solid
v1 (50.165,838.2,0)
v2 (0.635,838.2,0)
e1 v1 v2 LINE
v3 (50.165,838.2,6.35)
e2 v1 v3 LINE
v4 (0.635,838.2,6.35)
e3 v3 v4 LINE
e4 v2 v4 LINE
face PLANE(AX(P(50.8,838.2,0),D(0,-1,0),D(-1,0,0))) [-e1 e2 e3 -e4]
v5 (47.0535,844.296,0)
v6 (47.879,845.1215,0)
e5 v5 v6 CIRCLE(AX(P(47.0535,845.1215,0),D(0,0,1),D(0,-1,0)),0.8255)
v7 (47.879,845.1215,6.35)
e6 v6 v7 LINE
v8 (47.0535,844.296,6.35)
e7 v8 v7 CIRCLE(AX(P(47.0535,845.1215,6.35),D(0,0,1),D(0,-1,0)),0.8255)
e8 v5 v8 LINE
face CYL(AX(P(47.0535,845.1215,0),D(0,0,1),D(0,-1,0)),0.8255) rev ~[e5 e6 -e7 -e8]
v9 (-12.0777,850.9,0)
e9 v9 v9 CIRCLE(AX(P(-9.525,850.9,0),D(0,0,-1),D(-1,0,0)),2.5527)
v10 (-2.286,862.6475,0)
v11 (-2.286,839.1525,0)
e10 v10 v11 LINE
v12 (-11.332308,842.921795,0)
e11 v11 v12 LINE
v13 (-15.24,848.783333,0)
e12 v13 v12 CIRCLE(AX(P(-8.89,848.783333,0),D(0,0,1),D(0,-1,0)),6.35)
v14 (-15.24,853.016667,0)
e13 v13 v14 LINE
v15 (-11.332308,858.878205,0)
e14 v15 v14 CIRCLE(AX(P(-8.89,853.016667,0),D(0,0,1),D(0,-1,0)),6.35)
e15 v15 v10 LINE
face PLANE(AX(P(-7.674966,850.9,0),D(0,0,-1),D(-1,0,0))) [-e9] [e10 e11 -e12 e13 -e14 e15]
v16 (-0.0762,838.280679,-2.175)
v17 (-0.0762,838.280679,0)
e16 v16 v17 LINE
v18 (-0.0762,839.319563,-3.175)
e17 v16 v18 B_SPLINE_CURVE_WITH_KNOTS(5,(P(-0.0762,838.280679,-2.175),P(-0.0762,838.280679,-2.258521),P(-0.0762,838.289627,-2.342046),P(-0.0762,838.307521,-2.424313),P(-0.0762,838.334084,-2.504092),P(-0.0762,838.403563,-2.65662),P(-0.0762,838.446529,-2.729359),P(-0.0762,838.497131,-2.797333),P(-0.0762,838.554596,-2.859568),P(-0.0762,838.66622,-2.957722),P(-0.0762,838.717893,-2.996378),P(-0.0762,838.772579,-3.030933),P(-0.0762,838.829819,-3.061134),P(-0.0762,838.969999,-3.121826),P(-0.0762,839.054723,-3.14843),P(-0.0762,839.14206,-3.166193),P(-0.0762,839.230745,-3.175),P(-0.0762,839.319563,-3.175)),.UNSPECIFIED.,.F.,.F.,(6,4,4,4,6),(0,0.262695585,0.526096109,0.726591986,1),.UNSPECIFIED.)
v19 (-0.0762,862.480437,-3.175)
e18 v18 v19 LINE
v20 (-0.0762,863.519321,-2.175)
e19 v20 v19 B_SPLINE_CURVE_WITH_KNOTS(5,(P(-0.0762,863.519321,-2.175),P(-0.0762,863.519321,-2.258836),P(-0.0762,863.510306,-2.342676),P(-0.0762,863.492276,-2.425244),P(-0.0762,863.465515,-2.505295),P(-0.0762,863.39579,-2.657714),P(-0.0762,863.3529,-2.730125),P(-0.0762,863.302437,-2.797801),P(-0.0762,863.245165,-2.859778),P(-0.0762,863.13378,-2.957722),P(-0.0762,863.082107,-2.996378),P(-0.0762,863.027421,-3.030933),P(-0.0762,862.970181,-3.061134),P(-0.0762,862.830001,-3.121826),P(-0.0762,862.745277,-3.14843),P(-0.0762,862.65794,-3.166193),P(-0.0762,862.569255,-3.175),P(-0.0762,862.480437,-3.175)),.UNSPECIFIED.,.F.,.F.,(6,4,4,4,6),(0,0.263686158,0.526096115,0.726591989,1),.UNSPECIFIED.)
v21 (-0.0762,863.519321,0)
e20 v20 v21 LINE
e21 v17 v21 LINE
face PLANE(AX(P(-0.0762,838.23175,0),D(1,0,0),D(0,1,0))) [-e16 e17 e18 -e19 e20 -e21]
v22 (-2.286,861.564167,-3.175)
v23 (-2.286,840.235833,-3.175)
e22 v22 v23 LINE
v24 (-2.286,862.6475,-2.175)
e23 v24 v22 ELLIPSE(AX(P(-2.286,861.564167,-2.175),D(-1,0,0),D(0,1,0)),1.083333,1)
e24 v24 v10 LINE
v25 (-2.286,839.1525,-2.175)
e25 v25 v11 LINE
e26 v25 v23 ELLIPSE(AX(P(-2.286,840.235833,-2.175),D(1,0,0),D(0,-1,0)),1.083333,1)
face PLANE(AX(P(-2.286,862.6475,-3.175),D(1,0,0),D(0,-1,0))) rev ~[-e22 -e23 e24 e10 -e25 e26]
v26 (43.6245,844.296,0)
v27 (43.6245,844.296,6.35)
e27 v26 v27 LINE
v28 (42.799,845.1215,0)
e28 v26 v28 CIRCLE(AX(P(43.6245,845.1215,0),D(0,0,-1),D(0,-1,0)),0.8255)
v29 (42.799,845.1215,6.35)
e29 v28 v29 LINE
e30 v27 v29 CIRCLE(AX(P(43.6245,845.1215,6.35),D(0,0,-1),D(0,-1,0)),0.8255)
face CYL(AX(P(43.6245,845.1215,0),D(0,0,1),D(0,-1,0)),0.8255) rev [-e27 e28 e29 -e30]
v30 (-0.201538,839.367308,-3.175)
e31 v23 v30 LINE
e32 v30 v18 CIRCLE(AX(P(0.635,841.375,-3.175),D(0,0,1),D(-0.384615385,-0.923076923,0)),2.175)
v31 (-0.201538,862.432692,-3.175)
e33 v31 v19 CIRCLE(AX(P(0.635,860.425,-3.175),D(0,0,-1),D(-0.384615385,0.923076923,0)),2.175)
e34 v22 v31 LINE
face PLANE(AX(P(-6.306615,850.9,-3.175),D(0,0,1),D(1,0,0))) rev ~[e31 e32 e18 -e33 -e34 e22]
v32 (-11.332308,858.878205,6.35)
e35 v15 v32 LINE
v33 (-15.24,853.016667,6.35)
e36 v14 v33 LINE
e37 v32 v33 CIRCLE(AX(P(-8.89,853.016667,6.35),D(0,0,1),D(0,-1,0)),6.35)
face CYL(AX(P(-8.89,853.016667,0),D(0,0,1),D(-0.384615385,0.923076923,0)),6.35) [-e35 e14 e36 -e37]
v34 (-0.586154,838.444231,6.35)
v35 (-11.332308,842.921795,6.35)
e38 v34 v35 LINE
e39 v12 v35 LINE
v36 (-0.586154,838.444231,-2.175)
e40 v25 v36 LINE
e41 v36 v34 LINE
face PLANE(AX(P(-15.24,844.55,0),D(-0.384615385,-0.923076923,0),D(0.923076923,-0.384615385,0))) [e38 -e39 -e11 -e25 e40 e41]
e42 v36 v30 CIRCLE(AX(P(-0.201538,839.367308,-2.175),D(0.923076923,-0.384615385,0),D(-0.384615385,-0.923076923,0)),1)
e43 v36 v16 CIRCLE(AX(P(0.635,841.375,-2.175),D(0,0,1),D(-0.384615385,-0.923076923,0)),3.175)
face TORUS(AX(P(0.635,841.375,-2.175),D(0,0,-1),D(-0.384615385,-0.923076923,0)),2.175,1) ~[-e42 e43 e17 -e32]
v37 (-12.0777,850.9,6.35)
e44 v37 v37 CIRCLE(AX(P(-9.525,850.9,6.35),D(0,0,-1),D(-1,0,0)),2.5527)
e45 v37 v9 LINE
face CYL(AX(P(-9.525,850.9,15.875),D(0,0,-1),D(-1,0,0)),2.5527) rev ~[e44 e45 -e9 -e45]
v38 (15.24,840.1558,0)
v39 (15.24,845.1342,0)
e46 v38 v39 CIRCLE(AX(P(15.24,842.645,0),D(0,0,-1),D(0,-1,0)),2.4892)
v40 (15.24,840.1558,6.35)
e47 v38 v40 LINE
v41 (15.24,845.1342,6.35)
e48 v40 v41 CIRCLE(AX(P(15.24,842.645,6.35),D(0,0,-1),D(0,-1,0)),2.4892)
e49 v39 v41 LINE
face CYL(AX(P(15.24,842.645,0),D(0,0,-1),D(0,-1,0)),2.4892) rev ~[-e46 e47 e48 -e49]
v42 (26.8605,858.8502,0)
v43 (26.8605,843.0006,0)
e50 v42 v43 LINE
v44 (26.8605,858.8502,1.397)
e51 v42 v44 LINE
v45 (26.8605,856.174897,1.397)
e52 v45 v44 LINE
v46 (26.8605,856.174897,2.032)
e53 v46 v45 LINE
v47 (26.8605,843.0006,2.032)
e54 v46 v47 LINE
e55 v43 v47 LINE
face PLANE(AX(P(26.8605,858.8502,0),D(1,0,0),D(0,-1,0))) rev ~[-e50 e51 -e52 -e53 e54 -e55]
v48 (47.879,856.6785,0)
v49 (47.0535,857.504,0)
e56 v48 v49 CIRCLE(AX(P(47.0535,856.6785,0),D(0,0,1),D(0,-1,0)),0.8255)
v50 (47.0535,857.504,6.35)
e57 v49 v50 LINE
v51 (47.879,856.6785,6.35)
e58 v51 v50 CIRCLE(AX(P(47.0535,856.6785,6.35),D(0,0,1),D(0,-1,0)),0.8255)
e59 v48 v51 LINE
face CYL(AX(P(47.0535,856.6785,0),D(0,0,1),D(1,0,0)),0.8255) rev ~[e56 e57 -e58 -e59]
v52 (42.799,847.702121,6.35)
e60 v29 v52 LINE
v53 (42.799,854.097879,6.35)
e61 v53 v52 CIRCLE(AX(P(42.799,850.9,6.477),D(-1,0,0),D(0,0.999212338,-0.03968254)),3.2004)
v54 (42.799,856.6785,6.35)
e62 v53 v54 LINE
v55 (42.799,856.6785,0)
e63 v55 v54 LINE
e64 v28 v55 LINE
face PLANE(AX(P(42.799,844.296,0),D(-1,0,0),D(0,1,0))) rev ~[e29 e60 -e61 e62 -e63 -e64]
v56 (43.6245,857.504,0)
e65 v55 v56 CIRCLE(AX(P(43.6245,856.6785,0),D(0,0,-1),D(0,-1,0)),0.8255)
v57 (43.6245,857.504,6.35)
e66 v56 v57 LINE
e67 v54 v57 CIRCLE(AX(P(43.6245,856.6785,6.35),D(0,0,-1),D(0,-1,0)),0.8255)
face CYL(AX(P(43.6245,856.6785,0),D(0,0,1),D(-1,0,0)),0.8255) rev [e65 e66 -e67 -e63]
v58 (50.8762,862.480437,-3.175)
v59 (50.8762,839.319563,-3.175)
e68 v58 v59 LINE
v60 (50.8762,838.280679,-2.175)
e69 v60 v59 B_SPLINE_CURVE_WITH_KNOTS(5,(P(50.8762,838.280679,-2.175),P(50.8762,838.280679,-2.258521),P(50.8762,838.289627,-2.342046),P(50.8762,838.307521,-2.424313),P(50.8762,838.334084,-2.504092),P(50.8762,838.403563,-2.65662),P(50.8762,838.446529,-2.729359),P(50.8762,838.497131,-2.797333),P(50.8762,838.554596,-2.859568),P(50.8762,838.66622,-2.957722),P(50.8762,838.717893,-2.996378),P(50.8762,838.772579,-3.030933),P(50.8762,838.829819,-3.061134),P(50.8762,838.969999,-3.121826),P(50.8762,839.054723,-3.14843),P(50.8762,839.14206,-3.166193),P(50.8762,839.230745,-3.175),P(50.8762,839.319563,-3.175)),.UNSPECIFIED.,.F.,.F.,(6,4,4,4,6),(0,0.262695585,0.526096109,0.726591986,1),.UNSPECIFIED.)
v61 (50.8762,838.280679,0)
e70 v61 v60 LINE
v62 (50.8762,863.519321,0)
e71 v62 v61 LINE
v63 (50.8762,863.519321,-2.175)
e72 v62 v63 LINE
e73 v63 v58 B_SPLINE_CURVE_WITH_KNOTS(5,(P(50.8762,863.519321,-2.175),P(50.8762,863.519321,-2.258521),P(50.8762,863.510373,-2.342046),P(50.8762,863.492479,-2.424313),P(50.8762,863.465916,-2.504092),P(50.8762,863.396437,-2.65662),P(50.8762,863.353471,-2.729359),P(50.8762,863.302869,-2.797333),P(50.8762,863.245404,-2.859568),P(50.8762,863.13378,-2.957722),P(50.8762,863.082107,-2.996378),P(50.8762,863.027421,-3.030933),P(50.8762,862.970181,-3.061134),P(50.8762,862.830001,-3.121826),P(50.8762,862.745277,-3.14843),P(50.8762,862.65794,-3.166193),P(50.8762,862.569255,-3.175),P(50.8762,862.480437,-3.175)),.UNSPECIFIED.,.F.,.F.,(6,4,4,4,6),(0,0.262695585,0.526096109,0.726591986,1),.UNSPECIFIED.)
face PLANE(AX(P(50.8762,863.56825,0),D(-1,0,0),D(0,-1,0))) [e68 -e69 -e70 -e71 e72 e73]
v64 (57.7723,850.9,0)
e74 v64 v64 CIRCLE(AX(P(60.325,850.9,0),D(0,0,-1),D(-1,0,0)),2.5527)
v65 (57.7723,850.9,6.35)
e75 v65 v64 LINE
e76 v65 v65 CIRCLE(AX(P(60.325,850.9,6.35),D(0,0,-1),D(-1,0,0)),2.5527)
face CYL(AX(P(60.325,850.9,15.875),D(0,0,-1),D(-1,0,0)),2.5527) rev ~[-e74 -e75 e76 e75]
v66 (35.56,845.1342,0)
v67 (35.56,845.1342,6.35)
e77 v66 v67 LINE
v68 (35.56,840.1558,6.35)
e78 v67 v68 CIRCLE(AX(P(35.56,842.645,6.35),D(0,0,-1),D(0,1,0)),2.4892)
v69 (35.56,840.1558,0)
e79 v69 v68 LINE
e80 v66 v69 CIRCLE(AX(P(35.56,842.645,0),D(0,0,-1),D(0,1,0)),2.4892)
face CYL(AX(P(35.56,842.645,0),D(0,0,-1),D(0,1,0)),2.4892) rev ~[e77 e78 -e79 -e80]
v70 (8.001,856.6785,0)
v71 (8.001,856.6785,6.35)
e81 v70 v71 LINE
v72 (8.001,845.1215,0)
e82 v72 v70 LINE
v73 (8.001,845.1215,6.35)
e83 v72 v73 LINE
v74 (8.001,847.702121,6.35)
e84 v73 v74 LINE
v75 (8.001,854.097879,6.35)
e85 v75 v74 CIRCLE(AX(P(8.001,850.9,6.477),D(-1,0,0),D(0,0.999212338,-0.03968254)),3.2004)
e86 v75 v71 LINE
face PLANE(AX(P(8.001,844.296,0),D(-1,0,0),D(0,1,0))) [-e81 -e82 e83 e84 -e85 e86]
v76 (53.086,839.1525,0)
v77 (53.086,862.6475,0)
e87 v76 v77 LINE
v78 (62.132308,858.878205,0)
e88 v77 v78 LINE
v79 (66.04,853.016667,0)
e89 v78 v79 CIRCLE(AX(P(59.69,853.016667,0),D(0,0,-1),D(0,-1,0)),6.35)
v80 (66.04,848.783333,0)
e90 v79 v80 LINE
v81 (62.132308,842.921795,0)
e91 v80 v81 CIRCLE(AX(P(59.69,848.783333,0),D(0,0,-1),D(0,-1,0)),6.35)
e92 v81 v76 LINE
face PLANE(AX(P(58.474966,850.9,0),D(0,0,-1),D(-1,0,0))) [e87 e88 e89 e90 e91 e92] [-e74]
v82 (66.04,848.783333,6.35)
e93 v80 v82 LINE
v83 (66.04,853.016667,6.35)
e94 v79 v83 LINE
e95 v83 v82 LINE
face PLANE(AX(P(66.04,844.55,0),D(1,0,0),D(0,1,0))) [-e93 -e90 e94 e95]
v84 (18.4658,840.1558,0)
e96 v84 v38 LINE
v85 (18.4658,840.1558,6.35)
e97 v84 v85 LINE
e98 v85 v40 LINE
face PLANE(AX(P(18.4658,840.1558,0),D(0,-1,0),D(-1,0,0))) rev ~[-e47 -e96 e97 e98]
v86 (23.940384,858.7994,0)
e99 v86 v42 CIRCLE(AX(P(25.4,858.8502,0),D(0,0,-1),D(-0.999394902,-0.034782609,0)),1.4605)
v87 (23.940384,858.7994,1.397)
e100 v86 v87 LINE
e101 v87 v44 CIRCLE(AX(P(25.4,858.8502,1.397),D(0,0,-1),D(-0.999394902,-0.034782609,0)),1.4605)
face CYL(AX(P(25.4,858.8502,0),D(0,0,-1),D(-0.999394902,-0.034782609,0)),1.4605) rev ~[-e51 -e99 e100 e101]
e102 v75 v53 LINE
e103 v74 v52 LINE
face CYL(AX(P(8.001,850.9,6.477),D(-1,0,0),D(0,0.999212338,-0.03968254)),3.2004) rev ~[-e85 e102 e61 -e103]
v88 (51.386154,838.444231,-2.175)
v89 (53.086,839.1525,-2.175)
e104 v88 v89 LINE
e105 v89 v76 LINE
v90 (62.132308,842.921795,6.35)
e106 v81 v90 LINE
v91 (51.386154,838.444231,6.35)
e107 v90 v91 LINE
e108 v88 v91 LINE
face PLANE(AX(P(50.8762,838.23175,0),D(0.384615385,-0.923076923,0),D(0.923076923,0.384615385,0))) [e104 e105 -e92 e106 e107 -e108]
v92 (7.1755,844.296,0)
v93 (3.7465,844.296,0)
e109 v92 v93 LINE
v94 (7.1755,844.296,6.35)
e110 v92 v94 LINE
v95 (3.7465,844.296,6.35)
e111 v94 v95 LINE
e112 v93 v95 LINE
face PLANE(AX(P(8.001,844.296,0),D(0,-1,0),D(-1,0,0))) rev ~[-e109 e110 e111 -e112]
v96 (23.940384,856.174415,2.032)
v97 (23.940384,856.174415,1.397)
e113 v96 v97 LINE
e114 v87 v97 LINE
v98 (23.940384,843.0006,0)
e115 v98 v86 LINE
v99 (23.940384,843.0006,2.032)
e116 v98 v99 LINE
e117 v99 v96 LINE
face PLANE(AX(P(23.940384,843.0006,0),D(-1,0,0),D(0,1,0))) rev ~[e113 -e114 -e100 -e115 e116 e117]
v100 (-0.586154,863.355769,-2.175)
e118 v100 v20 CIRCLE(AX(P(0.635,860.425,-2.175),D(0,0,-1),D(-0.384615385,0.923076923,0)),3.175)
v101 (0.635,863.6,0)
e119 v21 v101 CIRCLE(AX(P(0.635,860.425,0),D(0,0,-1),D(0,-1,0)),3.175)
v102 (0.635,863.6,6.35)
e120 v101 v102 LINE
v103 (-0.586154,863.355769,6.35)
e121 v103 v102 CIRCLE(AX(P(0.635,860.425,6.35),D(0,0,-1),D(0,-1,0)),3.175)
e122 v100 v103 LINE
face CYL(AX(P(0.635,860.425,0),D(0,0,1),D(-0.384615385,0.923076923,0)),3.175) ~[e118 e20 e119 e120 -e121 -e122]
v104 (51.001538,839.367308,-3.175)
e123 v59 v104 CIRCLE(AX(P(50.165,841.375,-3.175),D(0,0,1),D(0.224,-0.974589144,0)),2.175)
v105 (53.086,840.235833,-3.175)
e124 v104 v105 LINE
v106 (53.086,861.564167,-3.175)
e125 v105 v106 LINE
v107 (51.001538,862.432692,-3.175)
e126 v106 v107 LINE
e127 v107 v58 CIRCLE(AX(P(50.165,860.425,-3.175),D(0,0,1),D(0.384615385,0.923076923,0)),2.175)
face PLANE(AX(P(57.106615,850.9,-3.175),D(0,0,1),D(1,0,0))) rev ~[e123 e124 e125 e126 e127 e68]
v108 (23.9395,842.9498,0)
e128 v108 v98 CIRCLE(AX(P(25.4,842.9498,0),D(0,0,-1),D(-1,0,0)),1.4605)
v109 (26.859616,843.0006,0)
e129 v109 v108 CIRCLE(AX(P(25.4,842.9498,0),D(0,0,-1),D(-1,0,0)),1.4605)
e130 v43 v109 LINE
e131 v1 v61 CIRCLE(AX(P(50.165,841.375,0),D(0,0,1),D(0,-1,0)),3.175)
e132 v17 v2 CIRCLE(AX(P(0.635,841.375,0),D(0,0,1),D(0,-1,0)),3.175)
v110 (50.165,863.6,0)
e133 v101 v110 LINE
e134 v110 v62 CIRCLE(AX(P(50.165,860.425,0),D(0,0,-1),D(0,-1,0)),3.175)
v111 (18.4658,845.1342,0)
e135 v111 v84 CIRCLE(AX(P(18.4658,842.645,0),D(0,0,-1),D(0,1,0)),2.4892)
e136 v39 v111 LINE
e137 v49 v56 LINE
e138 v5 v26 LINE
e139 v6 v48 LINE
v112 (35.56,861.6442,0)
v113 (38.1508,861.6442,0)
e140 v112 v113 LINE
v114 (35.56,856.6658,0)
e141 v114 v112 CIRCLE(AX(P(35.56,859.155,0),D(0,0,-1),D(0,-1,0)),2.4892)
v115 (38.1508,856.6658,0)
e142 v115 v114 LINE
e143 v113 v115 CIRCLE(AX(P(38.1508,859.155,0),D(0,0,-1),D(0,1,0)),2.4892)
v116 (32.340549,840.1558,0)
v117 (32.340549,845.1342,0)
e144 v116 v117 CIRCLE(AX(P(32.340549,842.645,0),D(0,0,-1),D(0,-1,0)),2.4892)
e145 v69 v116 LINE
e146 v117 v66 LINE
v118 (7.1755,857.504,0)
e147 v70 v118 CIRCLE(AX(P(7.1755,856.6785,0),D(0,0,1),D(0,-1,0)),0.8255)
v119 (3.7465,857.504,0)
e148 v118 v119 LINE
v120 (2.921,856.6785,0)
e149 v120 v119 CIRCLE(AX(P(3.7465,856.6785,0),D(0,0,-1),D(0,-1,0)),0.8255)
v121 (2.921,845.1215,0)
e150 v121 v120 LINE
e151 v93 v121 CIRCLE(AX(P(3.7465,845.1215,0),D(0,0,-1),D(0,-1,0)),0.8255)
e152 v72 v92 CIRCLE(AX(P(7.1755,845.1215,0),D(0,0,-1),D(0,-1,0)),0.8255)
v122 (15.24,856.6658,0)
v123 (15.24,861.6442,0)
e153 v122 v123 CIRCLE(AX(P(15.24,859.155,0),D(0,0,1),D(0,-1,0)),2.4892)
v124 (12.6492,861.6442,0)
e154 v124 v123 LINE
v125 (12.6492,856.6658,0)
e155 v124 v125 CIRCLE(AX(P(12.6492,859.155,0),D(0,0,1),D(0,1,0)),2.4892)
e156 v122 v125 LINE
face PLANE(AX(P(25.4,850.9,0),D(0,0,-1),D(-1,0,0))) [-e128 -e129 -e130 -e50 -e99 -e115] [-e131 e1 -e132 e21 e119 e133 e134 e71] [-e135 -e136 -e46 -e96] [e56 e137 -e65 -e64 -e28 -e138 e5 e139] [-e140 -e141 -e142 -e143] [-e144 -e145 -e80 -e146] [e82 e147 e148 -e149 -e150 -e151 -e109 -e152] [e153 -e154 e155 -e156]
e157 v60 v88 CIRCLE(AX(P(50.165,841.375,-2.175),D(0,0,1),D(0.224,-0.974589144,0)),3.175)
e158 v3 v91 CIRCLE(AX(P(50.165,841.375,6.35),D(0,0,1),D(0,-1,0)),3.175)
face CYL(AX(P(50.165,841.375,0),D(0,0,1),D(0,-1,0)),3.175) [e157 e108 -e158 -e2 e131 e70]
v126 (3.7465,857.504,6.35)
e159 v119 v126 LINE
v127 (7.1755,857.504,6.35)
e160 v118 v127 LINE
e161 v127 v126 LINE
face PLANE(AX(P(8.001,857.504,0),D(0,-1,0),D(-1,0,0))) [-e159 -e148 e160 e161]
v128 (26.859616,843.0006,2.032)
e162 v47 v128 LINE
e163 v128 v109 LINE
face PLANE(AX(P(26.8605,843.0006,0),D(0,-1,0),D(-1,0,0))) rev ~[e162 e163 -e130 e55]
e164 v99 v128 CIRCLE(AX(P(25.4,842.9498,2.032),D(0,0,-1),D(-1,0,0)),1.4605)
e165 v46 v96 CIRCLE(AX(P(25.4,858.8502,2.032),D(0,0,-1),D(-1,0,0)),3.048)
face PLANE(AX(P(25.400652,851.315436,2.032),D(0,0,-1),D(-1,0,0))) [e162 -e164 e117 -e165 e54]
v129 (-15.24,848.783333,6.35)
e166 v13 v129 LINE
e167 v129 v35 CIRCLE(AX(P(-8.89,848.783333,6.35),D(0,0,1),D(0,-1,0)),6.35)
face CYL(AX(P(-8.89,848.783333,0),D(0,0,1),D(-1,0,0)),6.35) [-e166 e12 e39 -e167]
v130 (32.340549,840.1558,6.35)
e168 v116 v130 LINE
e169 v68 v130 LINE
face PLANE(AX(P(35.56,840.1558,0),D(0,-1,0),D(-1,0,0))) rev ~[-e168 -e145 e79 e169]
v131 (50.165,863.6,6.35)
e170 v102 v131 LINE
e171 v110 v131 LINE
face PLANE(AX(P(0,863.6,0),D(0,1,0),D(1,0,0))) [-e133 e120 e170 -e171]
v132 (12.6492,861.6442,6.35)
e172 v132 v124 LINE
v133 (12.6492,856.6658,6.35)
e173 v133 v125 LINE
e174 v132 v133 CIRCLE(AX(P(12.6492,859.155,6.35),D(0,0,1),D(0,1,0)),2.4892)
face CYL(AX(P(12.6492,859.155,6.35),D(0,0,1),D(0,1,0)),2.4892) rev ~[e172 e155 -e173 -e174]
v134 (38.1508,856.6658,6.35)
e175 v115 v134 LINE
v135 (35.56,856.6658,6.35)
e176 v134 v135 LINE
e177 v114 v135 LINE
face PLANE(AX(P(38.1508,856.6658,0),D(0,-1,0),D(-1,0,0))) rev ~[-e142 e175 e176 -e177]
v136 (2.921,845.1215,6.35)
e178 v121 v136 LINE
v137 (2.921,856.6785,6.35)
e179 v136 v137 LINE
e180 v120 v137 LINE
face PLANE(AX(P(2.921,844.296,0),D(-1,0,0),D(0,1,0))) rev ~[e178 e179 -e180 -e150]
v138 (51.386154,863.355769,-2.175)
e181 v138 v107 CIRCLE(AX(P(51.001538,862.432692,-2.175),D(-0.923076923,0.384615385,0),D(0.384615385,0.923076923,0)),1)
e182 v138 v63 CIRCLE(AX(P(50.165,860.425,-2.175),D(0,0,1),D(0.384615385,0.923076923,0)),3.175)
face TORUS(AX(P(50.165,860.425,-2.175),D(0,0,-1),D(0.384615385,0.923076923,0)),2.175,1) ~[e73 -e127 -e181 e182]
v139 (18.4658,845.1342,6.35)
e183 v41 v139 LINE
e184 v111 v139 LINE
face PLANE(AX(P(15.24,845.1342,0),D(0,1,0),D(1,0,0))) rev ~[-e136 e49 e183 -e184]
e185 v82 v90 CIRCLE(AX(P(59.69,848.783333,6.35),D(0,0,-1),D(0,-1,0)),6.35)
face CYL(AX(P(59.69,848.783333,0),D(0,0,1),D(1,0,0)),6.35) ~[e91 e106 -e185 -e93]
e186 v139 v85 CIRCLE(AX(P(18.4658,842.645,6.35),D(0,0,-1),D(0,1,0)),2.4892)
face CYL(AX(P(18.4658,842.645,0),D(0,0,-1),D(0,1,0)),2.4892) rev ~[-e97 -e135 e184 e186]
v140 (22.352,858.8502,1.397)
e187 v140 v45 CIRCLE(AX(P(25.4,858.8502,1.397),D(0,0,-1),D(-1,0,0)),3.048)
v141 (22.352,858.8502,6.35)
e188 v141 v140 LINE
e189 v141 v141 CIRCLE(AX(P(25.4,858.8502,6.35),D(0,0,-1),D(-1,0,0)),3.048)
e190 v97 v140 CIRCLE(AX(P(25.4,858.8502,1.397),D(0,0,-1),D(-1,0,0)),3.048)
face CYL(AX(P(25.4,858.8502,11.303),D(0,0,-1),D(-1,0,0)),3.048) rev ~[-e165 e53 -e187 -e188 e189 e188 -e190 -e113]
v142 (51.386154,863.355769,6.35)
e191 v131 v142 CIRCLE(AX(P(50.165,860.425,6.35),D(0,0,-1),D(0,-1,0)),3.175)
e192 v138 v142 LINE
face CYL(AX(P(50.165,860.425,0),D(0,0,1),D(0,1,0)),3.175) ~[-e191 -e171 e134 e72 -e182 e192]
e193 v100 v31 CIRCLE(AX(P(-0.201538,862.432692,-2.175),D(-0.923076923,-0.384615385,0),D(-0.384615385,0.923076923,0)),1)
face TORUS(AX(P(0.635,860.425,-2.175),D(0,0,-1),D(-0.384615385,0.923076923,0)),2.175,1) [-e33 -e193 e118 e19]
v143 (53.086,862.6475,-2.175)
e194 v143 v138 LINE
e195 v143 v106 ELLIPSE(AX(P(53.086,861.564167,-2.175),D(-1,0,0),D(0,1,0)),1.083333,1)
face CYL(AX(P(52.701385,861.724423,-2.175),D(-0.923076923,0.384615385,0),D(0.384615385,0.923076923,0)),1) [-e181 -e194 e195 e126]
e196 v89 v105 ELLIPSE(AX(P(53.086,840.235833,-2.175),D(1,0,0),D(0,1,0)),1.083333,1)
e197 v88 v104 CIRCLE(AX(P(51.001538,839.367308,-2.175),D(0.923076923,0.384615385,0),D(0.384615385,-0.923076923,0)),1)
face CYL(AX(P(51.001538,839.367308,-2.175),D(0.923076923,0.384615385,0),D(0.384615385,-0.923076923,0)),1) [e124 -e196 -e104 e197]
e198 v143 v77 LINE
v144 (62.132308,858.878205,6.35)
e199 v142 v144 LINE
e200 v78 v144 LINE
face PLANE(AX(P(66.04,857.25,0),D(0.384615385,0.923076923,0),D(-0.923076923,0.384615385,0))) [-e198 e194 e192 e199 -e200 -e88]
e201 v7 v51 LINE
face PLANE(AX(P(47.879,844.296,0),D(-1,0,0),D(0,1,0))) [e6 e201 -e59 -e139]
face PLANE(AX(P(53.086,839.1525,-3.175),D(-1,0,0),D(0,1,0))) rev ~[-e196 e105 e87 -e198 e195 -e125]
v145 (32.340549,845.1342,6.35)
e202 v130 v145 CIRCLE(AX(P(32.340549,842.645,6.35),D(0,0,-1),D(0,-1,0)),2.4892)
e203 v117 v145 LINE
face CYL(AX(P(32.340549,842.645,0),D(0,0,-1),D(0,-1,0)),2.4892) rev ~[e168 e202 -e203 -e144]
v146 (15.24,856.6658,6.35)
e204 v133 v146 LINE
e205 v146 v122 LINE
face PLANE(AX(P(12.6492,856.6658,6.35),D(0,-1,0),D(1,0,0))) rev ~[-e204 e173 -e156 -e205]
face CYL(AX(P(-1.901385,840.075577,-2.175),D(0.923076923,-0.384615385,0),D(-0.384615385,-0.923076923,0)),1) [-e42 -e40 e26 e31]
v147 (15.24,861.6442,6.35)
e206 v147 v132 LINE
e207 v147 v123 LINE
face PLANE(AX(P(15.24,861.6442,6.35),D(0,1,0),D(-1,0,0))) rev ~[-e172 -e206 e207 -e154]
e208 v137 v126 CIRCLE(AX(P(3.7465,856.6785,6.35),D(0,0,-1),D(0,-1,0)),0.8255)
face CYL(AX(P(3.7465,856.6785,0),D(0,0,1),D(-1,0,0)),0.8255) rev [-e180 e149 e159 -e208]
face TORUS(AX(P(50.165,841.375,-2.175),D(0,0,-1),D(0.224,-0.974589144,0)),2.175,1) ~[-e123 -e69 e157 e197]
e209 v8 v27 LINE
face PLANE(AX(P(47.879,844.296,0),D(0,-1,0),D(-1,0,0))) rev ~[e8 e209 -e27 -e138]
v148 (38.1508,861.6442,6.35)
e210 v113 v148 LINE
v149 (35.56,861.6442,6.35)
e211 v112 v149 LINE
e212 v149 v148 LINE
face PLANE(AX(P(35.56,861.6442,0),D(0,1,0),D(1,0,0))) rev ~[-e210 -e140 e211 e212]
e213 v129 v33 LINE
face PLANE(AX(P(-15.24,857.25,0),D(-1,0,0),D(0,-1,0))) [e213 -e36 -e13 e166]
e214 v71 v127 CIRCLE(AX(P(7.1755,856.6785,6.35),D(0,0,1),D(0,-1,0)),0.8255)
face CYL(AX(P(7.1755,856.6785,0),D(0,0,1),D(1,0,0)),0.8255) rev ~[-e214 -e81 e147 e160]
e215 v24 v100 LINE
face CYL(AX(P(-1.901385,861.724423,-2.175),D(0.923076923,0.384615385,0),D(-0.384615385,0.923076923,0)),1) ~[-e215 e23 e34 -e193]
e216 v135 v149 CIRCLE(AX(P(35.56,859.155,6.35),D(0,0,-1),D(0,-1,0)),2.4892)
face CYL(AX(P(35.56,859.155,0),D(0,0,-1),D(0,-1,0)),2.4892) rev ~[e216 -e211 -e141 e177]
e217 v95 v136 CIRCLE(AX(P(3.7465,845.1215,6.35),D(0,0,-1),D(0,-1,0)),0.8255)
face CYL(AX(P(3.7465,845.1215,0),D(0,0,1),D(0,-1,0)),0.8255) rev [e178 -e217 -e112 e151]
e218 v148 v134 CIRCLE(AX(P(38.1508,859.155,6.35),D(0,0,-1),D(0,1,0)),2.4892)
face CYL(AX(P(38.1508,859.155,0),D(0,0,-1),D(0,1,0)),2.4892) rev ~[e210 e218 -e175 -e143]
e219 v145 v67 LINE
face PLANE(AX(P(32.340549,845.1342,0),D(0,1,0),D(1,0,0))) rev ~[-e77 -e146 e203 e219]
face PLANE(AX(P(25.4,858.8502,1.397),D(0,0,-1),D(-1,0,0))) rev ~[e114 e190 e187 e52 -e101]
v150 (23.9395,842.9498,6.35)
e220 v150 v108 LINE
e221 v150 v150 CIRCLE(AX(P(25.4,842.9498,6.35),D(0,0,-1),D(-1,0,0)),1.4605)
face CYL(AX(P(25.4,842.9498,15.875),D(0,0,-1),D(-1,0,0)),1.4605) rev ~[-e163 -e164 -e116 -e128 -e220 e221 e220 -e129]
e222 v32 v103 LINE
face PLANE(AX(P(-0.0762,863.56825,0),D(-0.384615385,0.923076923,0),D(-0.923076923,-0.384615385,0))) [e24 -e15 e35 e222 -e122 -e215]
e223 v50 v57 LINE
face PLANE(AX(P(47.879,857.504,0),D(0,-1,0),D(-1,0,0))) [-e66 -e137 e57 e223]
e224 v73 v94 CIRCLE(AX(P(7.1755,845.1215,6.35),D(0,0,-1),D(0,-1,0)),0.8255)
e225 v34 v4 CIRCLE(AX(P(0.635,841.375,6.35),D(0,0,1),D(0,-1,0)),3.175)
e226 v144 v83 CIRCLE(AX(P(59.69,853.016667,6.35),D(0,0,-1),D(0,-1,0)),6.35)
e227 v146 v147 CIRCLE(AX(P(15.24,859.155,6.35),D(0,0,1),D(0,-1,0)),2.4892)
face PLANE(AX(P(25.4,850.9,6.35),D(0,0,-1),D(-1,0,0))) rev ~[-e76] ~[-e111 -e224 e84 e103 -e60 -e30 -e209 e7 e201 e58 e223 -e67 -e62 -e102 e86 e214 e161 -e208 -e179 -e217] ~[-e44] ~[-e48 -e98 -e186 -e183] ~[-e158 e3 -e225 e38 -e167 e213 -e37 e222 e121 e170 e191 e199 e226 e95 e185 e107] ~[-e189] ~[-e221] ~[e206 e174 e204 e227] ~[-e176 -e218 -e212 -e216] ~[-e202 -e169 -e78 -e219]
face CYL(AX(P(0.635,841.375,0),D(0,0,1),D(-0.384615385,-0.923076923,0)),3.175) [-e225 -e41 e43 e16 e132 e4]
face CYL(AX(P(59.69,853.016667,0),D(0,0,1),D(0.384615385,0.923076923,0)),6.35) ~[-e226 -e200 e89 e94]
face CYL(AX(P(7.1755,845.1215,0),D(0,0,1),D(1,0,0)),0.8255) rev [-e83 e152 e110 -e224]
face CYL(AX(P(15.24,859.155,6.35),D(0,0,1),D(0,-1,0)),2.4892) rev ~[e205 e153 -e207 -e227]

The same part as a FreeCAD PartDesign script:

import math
import FreeCAD as App
import Part
import Sketcher
Q = App.Units.Quantity


def edges_at(feature, points):
    """Names of the edges that pass closest to the given points."""
    edges = feature.Shape.Edges
    near = lambda p: min(range(len(edges)), key=lambda i: edges[i].distToShape(Part.Vertex(*p))[0])
    return sorted({f"Edge{near(p) + 1}" for p in points})


def add_polygon(sketch, points):
    """Adds a closed chain of lines whose ends are joined by coincident constraints."""
    first, n = sketch.GeometryCount, len(points)
    for a, b in zip(points, points[1:] + points[:1]):
        sketch.addGeometry(Part.LineSegment(App.Vector(*a, 0), App.Vector(*b, 0)), False)
    for i in range(n):
        sketch.addConstraint(Sketcher.Constraint("Coincident", first + i, 2, first + (i + 1) % n, 1))

doc = App.newDocument("Part")
params = doc.addObject("Spreadsheet::Sheet", "Params")
for row, (alias, value) in enumerate([
    ("sketch1_width", "2 in"),
    ("sketch1_height", "0.5 in"),
    ("pad1_length", "0.25 in"),
    ("sketch2_height", "0.5 in"),
    ("pad2_length", "0.125 in"),
    ("sketch3_height", "0.5 in"),
    ("pad3_length", "0.125 in"),
    ("sketch4_height", "0.5 in"),
    ("sketch4_height2", "0.925 in"),
    ("pocket1_length", "0.125 in"),
    ("sketch5_width", "0.2 in"),
    ("sketch5_height", "0.52 in"),
    ("sketch6_width", "0.2 in"),
    ("sketch6_height", "0.52 in"),
    ("sketch7_radius", "0.126 in"),
    ("sketch8_height", "0.5 in"),
    ("sketch8_height2", "0.925 in"),
    ("pocket5_length", "0.125 in"),
    ("sketch9_radius", "0.098 in"),
    ("sketch10_radius", "0.098 in"),
    ("sketch10_width", "0.102 in"),
    ("sketch11_radius", "0.098 in"),
    ("sketch11_width", "0.127 in"),
    ("sketch12_radius", "0.098 in"),
    ("sketch12_width", "0.102 in"),
    ("sketch13_height", "0.622 in"),
    ("sketch13_height2", "0.624 in"),
    ("pocket10_length", "0.08 in"),
    ("sketch14_diameter", "0.24 in"),
    ("hole_diameter", "0.24 in"),
    ("hole_depth", "0.195 in"),
    ("sketch15_diameter", "0.115 in"),
    ("hole2_diameter", "0.115 in"),
    ("hole2_depth", "0.375 in"),
    ("sketch16_diameter", "0.201 in"),
    ("hole3_diameter", "0.201 in"),
    ("hole3_depth", "0.375 in"),
    ("fillet_radius", "0.125 in"),
    ("fillet2_radius", "0.0325 in"),
    ("fillet3_radius", "1 mm"),
    ("fillet4_radius", "0.25 in"),
], start=1):
    params.set(f"A{row}", alias)
    params.set(f"B{row}", "=" + value)
    params.setAlias(f"B{row}", alias)

body = doc.addObject("PartDesign::Body", "Body")

# Sketch on XY plane
sketch1 = body.newObject("Sketcher::SketchObject", "Sketch")
sketch1.AttachmentSupport = (doc.getObject("XY_Plane"), [""])
sketch1.MapMode = "FlatFace"
add_polygon(sketch1, [(50.8, 863.6), (66.04, 857.25), (66.04, 844.55), (50.8, 838.2), (0, 838.2), (-15.24, 844.55), (-15.24, 857.25), (0, 863.6)])  # lines 0-7
sketch1.addConstraint([
    Sketcher.Constraint("Vertical", 1),
    Sketcher.Constraint("Horizontal", 3),
    Sketcher.Constraint("Vertical", 5),
    Sketcher.Constraint("Horizontal", 7),
    Sketcher.Constraint("PointOnObject", 3, 2, -2),
    Sketcher.Constraint("PointOnObject", 6, 2, -2),
    Sketcher.Constraint("Parallel", 0, 4),
    Sketcher.Constraint("Parallel", 2, 6),
    Sketcher.Constraint("Horizontal", 1, 2, 4, 2),
    Sketcher.Constraint("Horizontal", 0, 2, 5, 2),
    Sketcher.Constraint("Vertical", 2, 2, 7, 2),
    Sketcher.Constraint("DistanceX", 3, 2, 3, 1, Q("2 in")),
    Sketcher.Constraint("DistanceY", 1, 2, 1, 1, Q("0.5 in")),
    Sketcher.Constraint("DistanceY", -1, 1, 2, 2, Q("33 in")),
    Sketcher.Constraint("DistanceY", -1, 1, 6, 2, Q("34 in")),
    Sketcher.Constraint("DistanceX", -1, 1, 0, 2, Q("2.6 in")),
])
sketch1.setExpression("Constraints[19]", "Params.sketch1_width")
sketch1.setExpression("Constraints[20]", "Params.sketch1_height")
pad1 = body.newObject("PartDesign::Pad", "Pad")
pad1.Profile = sketch1
pad1.setExpression("Length", "Params.pad1_length")

# Sketch on XY plane
sketch2 = body.newObject("Sketcher::SketchObject", "Sketch001")
sketch2.AttachmentSupport = (doc.getObject("XY_Plane"), [""])
sketch2.MapMode = "FlatFace"
add_polygon(sketch2, [(66.04, 844.55), (50.8762, 838.23175), (50.8762, 863.56825), (66.04, 857.25)])  # lines 0-3
sketch2.addConstraint([
    Sketcher.Constraint("Vertical", 1),
    Sketcher.Constraint("Vertical", 3),
    Sketcher.Constraint("Equal", 0, 2),
    Sketcher.Constraint("DistanceY", 3, 2, 3, 1, Q("0.5 in")),
    Sketcher.Constraint("DistanceX", -1, 1, 2, 2, Q("2.6 in")),
    Sketcher.Constraint("DistanceY", -1, 1, 2, 2, Q("33.75 in")),
    Sketcher.Constraint("DistanceY", 1, 1, 1, 2, Q("0.9975 in")),
    Sketcher.Constraint("DistanceX", -1, 1, 0, 2, Q("2.003 in")),
])
sketch2.setExpression("Constraints[7]", "Params.sketch2_height")
pad2 = body.newObject("PartDesign::Pad", "Pad001")
pad2.Profile = sketch2
pad2.setExpression("Length", "Params.pad2_length")
pad2.Reversed = True

# Sketch on XY plane
sketch3 = body.newObject("Sketcher::SketchObject", "Sketch002")
sketch3.AttachmentSupport = (doc.getObject("XY_Plane"), [""])
sketch3.MapMode = "FlatFace"
add_polygon(sketch3, [(-15.24, 857.25), (-0.0762, 863.56825), (-0.0762, 838.23175), (-15.24, 844.55)])  # lines 0-3
sketch3.addConstraint([
    Sketcher.Constraint("Vertical", 1),
    Sketcher.Constraint("Vertical", 3),
    Sketcher.Constraint("Equal", 0, 2),
    Sketcher.Constraint("DistanceY", 3, 1, 3, 2, Q("0.5 in")),
    Sketcher.Constraint("DistanceX", 2, 2, -1, 1, Q("0.6 in")),
    Sketcher.Constraint("DistanceY", -1, 1, 2, 2, Q("33.25 in")),
    Sketcher.Constraint("DistanceY", 1, 2, 1, 1, Q("0.9975 in")),
    Sketcher.Constraint("DistanceX", 0, 2, -1, 1, Q("0.003 in")),
])
sketch3.setExpression("Constraints[7]", "Params.sketch3_height")
pad3 = body.newObject("PartDesign::Pad", "Pad002")
pad3.Profile = sketch3
pad3.setExpression("Length", "Params.pad3_length")
pad3.Reversed = True

# Sketch on XY plane
sketch4 = body.newObject("Sketcher::SketchObject", "Sketch003")
sketch4.AttachmentSupport = (doc.getObject("XY_Plane"), [""])
sketch4.MapMode = "FlatFace"
sketch4.AttachmentOffset = App.Placement(App.Vector(0, 0, -0.125 * 25.4), App.Rotation())
add_polygon(sketch4, [(-2.286, 862.6475), (-2.286, 839.1525), (-15.24, 844.55), (-15.24, 857.25)])  # lines 0-3
sketch4.addConstraint([
    Sketcher.Constraint("Vertical", 0),
    Sketcher.Constraint("Vertical", 2),
    Sketcher.Constraint("Equal", 1, 3),
    Sketcher.Constraint("DistanceY", 2, 1, 2, 2, Q("0.5 in")),
    Sketcher.Constraint("DistanceX", 1, 2, -1, 1, Q("0.6 in")),
    Sketcher.Constraint("DistanceY", 0, 2, 0, 1, Q("0.925 in")),
    Sketcher.Constraint("DistanceX", 0, 2, -1, 1, Q("0.09 in")),
    Sketcher.Constraint("DistanceY", -1, 1, 1, 2, Q("33.25 in")),
])
sketch4.setExpression("Constraints[7]", "Params.sketch4_height")
sketch4.setExpression("Constraints[9]", "Params.sketch4_height2")
pocket1 = body.newObject("PartDesign::Pocket", "Pocket")
pocket1.Profile = sketch4
pocket1.setExpression("Length", "Params.pocket1_length")
pocket1.Reversed = True

# Sketch on XY plane
sketch5 = body.newObject("Sketcher::SketchObject", "Sketch004")
sketch5.AttachmentSupport = (doc.getObject("XY_Plane"), [""])
sketch5.MapMode = "FlatFace"
add_polygon(sketch5, [(8.001, 857.504), (8.001, 844.296), (2.921, 844.296), (2.921, 857.504)])  # lines 0-3
sketch5.addConstraint([
    Sketcher.Constraint("Vertical", 0),
    Sketcher.Constraint("Horizontal", 1),
    Sketcher.Constraint("Vertical", 2),
    Sketcher.Constraint("Horizontal", 3),
    Sketcher.Constraint("DistanceX", 1, 2, 1, 1, Q("0.2 in")),
    Sketcher.Constraint("DistanceY", 0, 2, 0, 1, Q("0.52 in")),
    Sketcher.Constraint("DistanceY", -1, 1, 0, 2, Q("33.24 in")),
    Sketcher.Constraint("DistanceX", -1, 1, 0, 2, Q("0.315 in")),
])
sketch5.setExpression("Constraints[8]", "Params.sketch5_width")
sketch5.setExpression("Constraints[9]", "Params.sketch5_height")
pocket2 = body.newObject("PartDesign::Pocket", "Pocket001")
pocket2.Profile = sketch5
pocket2.Type = "ThroughAll"
pocket2.Reversed = True

# Sketch on XY plane
sketch6 = body.newObject("Sketcher::SketchObject", "Sketch005")
sketch6.AttachmentSupport = (doc.getObject("XY_Plane"), [""])
sketch6.MapMode = "FlatFace"
add_polygon(sketch6, [(47.879, 857.504), (47.879, 844.296), (42.799, 844.296), (42.799, 857.504)])  # lines 0-3
sketch6.addConstraint([
    Sketcher.Constraint("Vertical", 0),
    Sketcher.Constraint("Horizontal", 1),
    Sketcher.Constraint("Vertical", 2),
    Sketcher.Constraint("Horizontal", 3),
    Sketcher.Constraint("DistanceX", 1, 2, 1, 1, Q("0.2 in")),
    Sketcher.Constraint("DistanceY", 0, 2, 0, 1, Q("0.52 in")),
    Sketcher.Constraint("DistanceY", -1, 1, 0, 2, Q("33.24 in")),
    Sketcher.Constraint("DistanceX", -1, 1, 0, 2, Q("1.885 in")),
])
sketch6.setExpression("Constraints[8]", "Params.sketch6_width")
sketch6.setExpression("Constraints[9]", "Params.sketch6_height")
pocket3 = body.newObject("PartDesign::Pocket", "Pocket002")
pocket3.Profile = sketch6
pocket3.Type = "ThroughAll"
pocket3.Reversed = True

# Sketch on YZ plane
sketch7 = body.newObject("Sketcher::SketchObject", "Sketch006")
sketch7.AttachmentSupport = (doc.getObject("YZ_Plane"), [""])
sketch7.MapMode = "FlatFace"
sketch7.AttachmentOffset = App.Placement(App.Vector(0, 0, 0.315 * 25.4), App.Rotation())
sketch7.addGeometry([
    Part.LineSegment(App.Vector(847.702121, 6.35, 0), App.Vector(854.097879, 6.35, 0)),
    Part.ArcOfCircle(Part.Circle(App.Vector(850.9, 6.477, 0), App.Vector(0, 0, 1), 3.2004), math.radians(-177.725761), math.radians(-2.274239)),
], False)
sketch7.addConstraint([
    Sketcher.Constraint("Coincident", 0, 1, 1, 1),
    Sketcher.Constraint("Coincident", 1, 2, 0, 2),
    Sketcher.Constraint("Horizontal", 0),
    Sketcher.Constraint("Radius", 1, Q("0.126 in")),
    Sketcher.Constraint("DistanceX", -1, 1, 1, 3, Q("33.5 in")),
    Sketcher.Constraint("DistanceY", -1, 1, 0, 1, Q("0.25 in")),
    Sketcher.Constraint("DistanceY", -1, 1, 1, 3, Q("0.255 in")),
])
sketch7.setExpression("Constraints[3]", "Params.sketch7_radius")
pocket4 = body.newObject("PartDesign::Pocket", "Pocket003")
pocket4.Profile = sketch7
pocket4.Type = "UpToFirst"
pocket4.Reversed = True

# Sketch on XY plane
sketch8 = body.newObject("Sketcher::SketchObject", "Sketch007")
sketch8.AttachmentSupport = (doc.getObject("XY_Plane"), [""])
sketch8.MapMode = "FlatFace"
sketch8.AttachmentOffset = App.Placement(App.Vector(0, 0, -0.125 * 25.4), App.Rotation())
add_polygon(sketch8, [(53.086, 839.1525), (53.086, 862.6475), (66.04, 857.25), (66.04, 844.55)])  # lines 0-3
sketch8.addConstraint([
    Sketcher.Constraint("Vertical", 0),
    Sketcher.Constraint("Vertical", 2),
    Sketcher.Constraint("Equal", 1, 3),
    Sketcher.Constraint("DistanceY", 2, 2, 2, 1, Q("0.5 in")),
    Sketcher.Constraint("DistanceX", -1, 1, 1, 2, Q("2.6 in")),
    Sketcher.Constraint("DistanceY", 0, 1, 0, 2, Q("0.925 in")),
    Sketcher.Constraint("DistanceX", -1, 1, 0, 2, Q("2.09 in")),
    Sketcher.Constraint("DistanceY", -1, 1, 1, 2, Q("33.75 in")),
])
sketch8.setExpression("Constraints[7]", "Params.sketch8_height")
sketch8.setExpression("Constraints[9]", "Params.sketch8_height2")
pocket5 = body.newObject("PartDesign::Pocket", "Pocket004")
pocket5.Profile = sketch8
pocket5.setExpression("Length", "Params.pocket5_length")
pocket5.Reversed = True

# Sketch on XY plane
sketch9 = body.newObject("Sketcher::SketchObject", "Sketch008")
sketch9.AttachmentSupport = (doc.getObject("XY_Plane"), [""])
sketch9.MapMode = "FlatFace"
sketch9.addGeometry([
    Part.LineSegment(App.Vector(35.56, 840.1558, 0), App.Vector(32.340549, 840.1558, 0)),
    Part.ArcOfCircle(Part.Circle(App.Vector(32.340549, 842.645, 0), App.Vector(0, 0, 1), 2.4892), math.radians(90), math.radians(270)),
    Part.LineSegment(App.Vector(32.340549, 845.1342, 0), App.Vector(35.56, 845.1342, 0)),
    Part.ArcOfCircle(Part.Circle(App.Vector(35.56, 842.645, 0), App.Vector(0, 0, 1), 2.4892), math.radians(-90), math.radians(90)),
], False)
sketch9.addConstraint([
    Sketcher.Constraint("Tangent", 0, 2, 1, 2),
    Sketcher.Constraint("Tangent", 1, 1, 2, 1),
    Sketcher.Constraint("Tangent", 2, 2, 3, 2),
    Sketcher.Constraint("Tangent", 3, 1, 0, 1),
    Sketcher.Constraint("Horizontal", 0),
    Sketcher.Constraint("Horizontal", 2),
    Sketcher.Constraint("Radius", 1, Q("0.098 in")),
    Sketcher.Constraint("DistanceX", -1, 1, 3, 3, Q("1.4 in")),
    Sketcher.Constraint("DistanceY", -1, 1, 1, 3, Q("33.175 in")),
    Sketcher.Constraint("DistanceX", 0, 2, 0, 1, 3.219451),
])
sketch9.setExpression("Constraints[6]", "Params.sketch9_radius")
pocket6 = body.newObject("PartDesign::Pocket", "Pocket005")
pocket6.Profile = sketch9
pocket6.Type = "ThroughAll"
pocket6.Reversed = True

# Sketch on XY plane
sketch10 = body.newObject("Sketcher::SketchObject", "Sketch009")
sketch10.AttachmentSupport = (doc.getObject("XY_Plane"), [""])
sketch10.MapMode = "FlatFace"
sketch10.addGeometry([
    Part.LineSegment(App.Vector(35.56, 861.6442, 0), App.Vector(38.1508, 861.6442, 0)),
    Part.ArcOfCircle(Part.Circle(App.Vector(38.1508, 859.155, 0), App.Vector(0, 0, 1), 2.4892), math.radians(-90), math.radians(90)),
    Part.LineSegment(App.Vector(38.1508, 856.6658, 0), App.Vector(35.56, 856.6658, 0)),
    Part.ArcOfCircle(Part.Circle(App.Vector(35.56, 859.155, 0), App.Vector(0, 0, 1), 2.4892), math.radians(90), math.radians(270)),
], False)
sketch10.addConstraint([
    Sketcher.Constraint("Tangent", 0, 2, 1, 2),
    Sketcher.Constraint("Tangent", 1, 1, 2, 1),
    Sketcher.Constraint("Tangent", 2, 2, 3, 2),
    Sketcher.Constraint("Tangent", 3, 1, 0, 1),
    Sketcher.Constraint("Horizontal", 0),
    Sketcher.Constraint("Horizontal", 2),
    Sketcher.Constraint("Radius", 1, Q("0.098 in")),
    Sketcher.Constraint("DistanceX", -1, 1, 3, 3, Q("1.4 in")),
    Sketcher.Constraint("DistanceX", 0, 1, 0, 2, Q("0.102 in")),
    Sketcher.Constraint("DistanceY", -1, 1, 1, 3, Q("33.825 in")),
])
sketch10.setExpression("Constraints[6]", "Params.sketch10_radius")
sketch10.setExpression("Constraints[8]", "Params.sketch10_width")
pocket7 = body.newObject("PartDesign::Pocket", "Pocket006")
pocket7.Profile = sketch10
pocket7.Type = "ThroughAll"
pocket7.Reversed = True

# Sketch on XY plane
sketch11 = body.newObject("Sketcher::SketchObject", "Sketch010")
sketch11.AttachmentSupport = (doc.getObject("XY_Plane"), [""])
sketch11.MapMode = "FlatFace"
sketch11.addGeometry([
    Part.LineSegment(App.Vector(15.24, 845.1342, 0), App.Vector(18.4658, 845.1342, 0)),
    Part.ArcOfCircle(Part.Circle(App.Vector(18.4658, 842.645, 0), App.Vector(0, 0, 1), 2.4892), math.radians(-90), math.radians(90)),
    Part.LineSegment(App.Vector(18.4658, 840.1558, 0), App.Vector(15.24, 840.1558, 0)),
    Part.ArcOfCircle(Part.Circle(App.Vector(15.24, 842.645, 0), App.Vector(0, 0, 1), 2.4892), math.radians(90), math.radians(270)),
], False)
sketch11.addConstraint([
    Sketcher.Constraint("Tangent", 0, 2, 1, 2),
    Sketcher.Constraint("Tangent", 1, 1, 2, 1),
    Sketcher.Constraint("Tangent", 2, 2, 3, 2),
    Sketcher.Constraint("Tangent", 3, 1, 0, 1),
    Sketcher.Constraint("Horizontal", 0),
    Sketcher.Constraint("Horizontal", 2),
    Sketcher.Constraint("Radius", 1, Q("0.098 in")),
    Sketcher.Constraint("DistanceX", -1, 1, 3, 3, Q("0.6 in")),
    Sketcher.Constraint("DistanceX", 0, 1, 0, 2, Q("0.127 in")),
    Sketcher.Constraint("DistanceY", -1, 1, 1, 3, Q("33.175 in")),
])
sketch11.setExpression("Constraints[6]", "Params.sketch11_radius")
sketch11.setExpression("Constraints[8]", "Params.sketch11_width")
pocket8 = body.newObject("PartDesign::Pocket", "Pocket007")
pocket8.Profile = sketch11
pocket8.Type = "ThroughAll"
pocket8.Reversed = True

# Sketch on XY plane
sketch12 = body.newObject("Sketcher::SketchObject", "Sketch011")
sketch12.AttachmentSupport = (doc.getObject("XY_Plane"), [""])
sketch12.MapMode = "FlatFace"
sketch12.AttachmentOffset = App.Placement(App.Vector(0, 0, 0.25 * 25.4), App.Rotation())
sketch12.addGeometry([
    Part.LineSegment(App.Vector(15.24, 861.6442, 0), App.Vector(12.6492, 861.6442, 0)),
    Part.ArcOfCircle(Part.Circle(App.Vector(12.6492, 859.155, 0), App.Vector(0, 0, 1), 2.4892), math.radians(90), math.radians(270)),
    Part.LineSegment(App.Vector(12.6492, 856.6658, 0), App.Vector(15.24, 856.6658, 0)),
    Part.ArcOfCircle(Part.Circle(App.Vector(15.24, 859.155, 0), App.Vector(0, 0, 1), 2.4892), math.radians(-90), math.radians(90)),
], False)
sketch12.addConstraint([
    Sketcher.Constraint("Tangent", 0, 2, 1, 1),
    Sketcher.Constraint("Tangent", 1, 2, 2, 1),
    Sketcher.Constraint("Tangent", 2, 2, 3, 1),
    Sketcher.Constraint("Tangent", 3, 2, 0, 1),
    Sketcher.Constraint("Horizontal", 0),
    Sketcher.Constraint("Horizontal", 2),
    Sketcher.Constraint("Radius", 1, Q("0.098 in")),
    Sketcher.Constraint("DistanceX", -1, 1, 3, 3, Q("0.6 in")),
    Sketcher.Constraint("DistanceX", 0, 2, 0, 1, Q("0.102 in")),
    Sketcher.Constraint("DistanceY", -1, 1, 1, 3, Q("33.825 in")),
])
sketch12.setExpression("Constraints[6]", "Params.sketch12_radius")
sketch12.setExpression("Constraints[8]", "Params.sketch12_width")
pocket9 = body.newObject("PartDesign::Pocket", "Pocket008")
pocket9.Profile = sketch12
pocket9.Type = "ThroughAll"

# Sketch on XY plane
sketch13 = body.newObject("Sketcher::SketchObject", "Sketch012")
sketch13.AttachmentSupport = (doc.getObject("XY_Plane"), [""])
sketch13.MapMode = "FlatFace"
sketch13.addGeometry([
    Part.LineSegment(App.Vector(26.8605, 843.0006, 0), App.Vector(23.940384, 843.0006, 0)),
    Part.LineSegment(App.Vector(23.940384, 843.0006, 0), App.Vector(23.940384, 858.7994, 0)),
    Part.ArcOfCircle(Part.Circle(App.Vector(25.4, 858.8502, 0), App.Vector(0, 0, 1), 1.4605), math.radians(0), math.radians(181.993299)),
    Part.LineSegment(App.Vector(26.8605, 858.8502, 0), App.Vector(26.8605, 843.0006, 0)),
], False)
sketch13.addConstraint([
    Sketcher.Constraint("Coincident", 0, 2, 1, 1),
    Sketcher.Constraint("Coincident", 1, 2, 2, 2),
    Sketcher.Constraint("Tangent", 2, 1, 3, 1),
    Sketcher.Constraint("Coincident", 3, 2, 0, 1),
    Sketcher.Constraint("Horizontal", 0),
    Sketcher.Constraint("Vertical", 1),
    Sketcher.Constraint("Vertical", 3),
    Sketcher.Constraint("DistanceX", -1, 1, 2, 3, Q("1 in")),
    Sketcher.Constraint("Radius", 2, Q("0.0575 in")),
    Sketcher.Constraint("DistanceY", 1, 1, 1, 2, Q("0.622 in")),
    Sketcher.Constraint("DistanceY", 3, 2, 3, 1, Q("0.624 in")),
    Sketcher.Constraint("DistanceY", -1, 1, 2, 3, Q("33.813 in")),
])
sketch13.setExpression("Constraints[9]", "Params.sketch13_height")
sketch13.setExpression("Constraints[10]", "Params.sketch13_height2")
pocket10 = body.newObject("PartDesign::Pocket", "Pocket009")
pocket10.Profile = sketch13
pocket10.setExpression("Length", "Params.pocket10_length")
pocket10.Reversed = True

# Sketch on XY plane
sketch14 = body.newObject("Sketcher::SketchObject", "Sketch013")
sketch14.AttachmentSupport = (doc.getObject("XY_Plane"), [""])
sketch14.MapMode = "FlatFace"
sketch14.AttachmentOffset = App.Placement(App.Vector(0, 0, 0.25 * 25.4), App.Rotation())
sketch14.addGeometry(Part.Circle(App.Vector(25.4, 858.8502, 0), App.Vector(0, 0, 1), 3.048), False)
sketch14.addConstraint([
    Sketcher.Constraint("Diameter", 0, Q("0.24 in")),
    Sketcher.Constraint("DistanceX", -1, 1, 0, 3, Q("1 in")),
    Sketcher.Constraint("DistanceY", -1, 1, 0, 3, Q("33.813 in")),
])
sketch14.setExpression("Constraints[0]", "Params.sketch14_diameter")
doc.recompute()
hole = body.newObject("PartDesign::Hole", "Hole")
hole.Profile = sketch14
hole.ThreadType = "None"
hole.setExpression("Diameter", "Params.hole_diameter")
hole.DepthType = "Dimension"
hole.setExpression("Depth", "Params.hole_depth")
hole.DrillPoint = "Flat"

# Sketch on XY plane
sketch15 = body.newObject("Sketcher::SketchObject", "Sketch014")
sketch15.AttachmentSupport = (doc.getObject("XY_Plane"), [""])
sketch15.MapMode = "FlatFace"
sketch15.AttachmentOffset = App.Placement(App.Vector(0, 0, 0.25 * 25.4), App.Rotation())
sketch15.addGeometry(Part.Circle(App.Vector(25.4, 842.9498, 0), App.Vector(0, 0, 1), 1.4605), False)
sketch15.addConstraint([
    Sketcher.Constraint("Diameter", 0, Q("0.115 in")),
    Sketcher.Constraint("DistanceX", -1, 1, 0, 3, Q("1 in")),
    Sketcher.Constraint("DistanceY", -1, 1, 0, 3, Q("33.187 in")),
])
sketch15.setExpression("Constraints[0]", "Params.sketch15_diameter")
doc.recompute()
hole2 = body.newObject("PartDesign::Hole", "Hole001")
hole2.Profile = sketch15
hole2.ThreadType = "None"
hole2.setExpression("Diameter", "Params.hole2_diameter")
hole2.DepthType = "Dimension"
hole2.setExpression("Depth", "Params.hole2_depth")
hole2.DrillPoint = "Flat"

# Sketch on XY plane
sketch16 = body.newObject("Sketcher::SketchObject", "Sketch015")
sketch16.AttachmentSupport = (doc.getObject("XY_Plane"), [""])
sketch16.MapMode = "FlatFace"
sketch16.AttachmentOffset = App.Placement(App.Vector(0, 0, 0.25 * 25.4), App.Rotation())
sketch16.addGeometry([
    Part.Circle(App.Vector(-9.525, 850.9, 0), App.Vector(0, 0, 1), 2.5527),
    Part.Circle(App.Vector(60.325, 850.9, 0), App.Vector(0, 0, 1), 2.5527),
], False)
sketch16.addConstraint([
    Sketcher.Constraint("Equal", 0, 1),
    Sketcher.Constraint("Horizontal", 0, 3, 1, 3),
    Sketcher.Constraint("Diameter", 0, Q("0.201 in")),
    Sketcher.Constraint("DistanceY", -1, 1, 0, 3, Q("33.5 in")),
    Sketcher.Constraint("DistanceX", 0, 3, 1, 3, Q("2.75 in")),
    Sketcher.Constraint("DistanceX", 0, 3, -1, 1, Q("0.375 in")),
])
sketch16.setExpression("Constraints[2]", "Params.sketch16_diameter")
doc.recompute()
hole3 = body.newObject("PartDesign::Hole", "Hole002")
hole3.Profile = sketch16
hole3.ThreadType = "None"
hole3.setExpression("Diameter", "Params.hole3_diameter")
hole3.DepthType = "Dimension"
hole3.setExpression("Depth", "Params.hole3_depth")
hole3.DrillPoint = "Flat"
doc.recompute()

fillet = body.newObject("PartDesign::Fillet", "Fillet")
fillet.Base = (hole3, edges_at(hole3, [
    (0, 838.2, 3.175),
    (50.8, 838.2, 3.175),
    (50.8, 863.6, 3.175),
    (0, 863.6, 3.175),
]))
fillet.setExpression("Radius", "Params.fillet_radius")
doc.recompute()

fillet2 = body.newObject("PartDesign::Fillet", "Fillet001")
fillet2.Base = (fillet, edges_at(fillet, [
    (8.001, 857.504, 3.175),
    (2.921, 857.504, 3.175),
    (2.921, 844.296, 3.175),
    (8.001, 844.296, 3.175),
    (47.879, 857.504, 3.175),
    (42.799, 857.504, 3.175),
    (42.799, 844.296, 3.175),
    (47.879, 844.296, 3.175),
]))
fillet2.setExpression("Radius", "Params.fillet2_radius")
doc.recompute()

fillet3 = body.newObject("PartDesign::Fillet", "Fillet002")
fillet3.Base = (fillet2, edges_at(fillet2, [
    (52.236, 838.798, -3.175),
    (-1.436, 838.798, -3.175),
    (-0.335, 863.448, -3.175),
    (-0.335, 838.352, -3.175),
    (52.236, 863.002, -3.175),
    (51.135, 863.448, -3.175),
    (51.135, 838.352, -3.175),
    (-1.436, 863.002, -3.175),
]))
fillet3.setExpression("Radius", "Params.fillet3_radius")
doc.recompute()

fillet4 = body.newObject("PartDesign::Fillet", "Fillet003")
fillet4.Base = (fillet3, edges_at(fillet3, [
    (-15.24, 857.25, 3.175),
    (-15.24, 844.55, 3.175),
    (66.04, 844.55, 3.175),
    (66.04, 857.25, 3.175),
]))
fillet4.setExpression("Radius", "Params.fillet4_radius")

doc.recompute()
